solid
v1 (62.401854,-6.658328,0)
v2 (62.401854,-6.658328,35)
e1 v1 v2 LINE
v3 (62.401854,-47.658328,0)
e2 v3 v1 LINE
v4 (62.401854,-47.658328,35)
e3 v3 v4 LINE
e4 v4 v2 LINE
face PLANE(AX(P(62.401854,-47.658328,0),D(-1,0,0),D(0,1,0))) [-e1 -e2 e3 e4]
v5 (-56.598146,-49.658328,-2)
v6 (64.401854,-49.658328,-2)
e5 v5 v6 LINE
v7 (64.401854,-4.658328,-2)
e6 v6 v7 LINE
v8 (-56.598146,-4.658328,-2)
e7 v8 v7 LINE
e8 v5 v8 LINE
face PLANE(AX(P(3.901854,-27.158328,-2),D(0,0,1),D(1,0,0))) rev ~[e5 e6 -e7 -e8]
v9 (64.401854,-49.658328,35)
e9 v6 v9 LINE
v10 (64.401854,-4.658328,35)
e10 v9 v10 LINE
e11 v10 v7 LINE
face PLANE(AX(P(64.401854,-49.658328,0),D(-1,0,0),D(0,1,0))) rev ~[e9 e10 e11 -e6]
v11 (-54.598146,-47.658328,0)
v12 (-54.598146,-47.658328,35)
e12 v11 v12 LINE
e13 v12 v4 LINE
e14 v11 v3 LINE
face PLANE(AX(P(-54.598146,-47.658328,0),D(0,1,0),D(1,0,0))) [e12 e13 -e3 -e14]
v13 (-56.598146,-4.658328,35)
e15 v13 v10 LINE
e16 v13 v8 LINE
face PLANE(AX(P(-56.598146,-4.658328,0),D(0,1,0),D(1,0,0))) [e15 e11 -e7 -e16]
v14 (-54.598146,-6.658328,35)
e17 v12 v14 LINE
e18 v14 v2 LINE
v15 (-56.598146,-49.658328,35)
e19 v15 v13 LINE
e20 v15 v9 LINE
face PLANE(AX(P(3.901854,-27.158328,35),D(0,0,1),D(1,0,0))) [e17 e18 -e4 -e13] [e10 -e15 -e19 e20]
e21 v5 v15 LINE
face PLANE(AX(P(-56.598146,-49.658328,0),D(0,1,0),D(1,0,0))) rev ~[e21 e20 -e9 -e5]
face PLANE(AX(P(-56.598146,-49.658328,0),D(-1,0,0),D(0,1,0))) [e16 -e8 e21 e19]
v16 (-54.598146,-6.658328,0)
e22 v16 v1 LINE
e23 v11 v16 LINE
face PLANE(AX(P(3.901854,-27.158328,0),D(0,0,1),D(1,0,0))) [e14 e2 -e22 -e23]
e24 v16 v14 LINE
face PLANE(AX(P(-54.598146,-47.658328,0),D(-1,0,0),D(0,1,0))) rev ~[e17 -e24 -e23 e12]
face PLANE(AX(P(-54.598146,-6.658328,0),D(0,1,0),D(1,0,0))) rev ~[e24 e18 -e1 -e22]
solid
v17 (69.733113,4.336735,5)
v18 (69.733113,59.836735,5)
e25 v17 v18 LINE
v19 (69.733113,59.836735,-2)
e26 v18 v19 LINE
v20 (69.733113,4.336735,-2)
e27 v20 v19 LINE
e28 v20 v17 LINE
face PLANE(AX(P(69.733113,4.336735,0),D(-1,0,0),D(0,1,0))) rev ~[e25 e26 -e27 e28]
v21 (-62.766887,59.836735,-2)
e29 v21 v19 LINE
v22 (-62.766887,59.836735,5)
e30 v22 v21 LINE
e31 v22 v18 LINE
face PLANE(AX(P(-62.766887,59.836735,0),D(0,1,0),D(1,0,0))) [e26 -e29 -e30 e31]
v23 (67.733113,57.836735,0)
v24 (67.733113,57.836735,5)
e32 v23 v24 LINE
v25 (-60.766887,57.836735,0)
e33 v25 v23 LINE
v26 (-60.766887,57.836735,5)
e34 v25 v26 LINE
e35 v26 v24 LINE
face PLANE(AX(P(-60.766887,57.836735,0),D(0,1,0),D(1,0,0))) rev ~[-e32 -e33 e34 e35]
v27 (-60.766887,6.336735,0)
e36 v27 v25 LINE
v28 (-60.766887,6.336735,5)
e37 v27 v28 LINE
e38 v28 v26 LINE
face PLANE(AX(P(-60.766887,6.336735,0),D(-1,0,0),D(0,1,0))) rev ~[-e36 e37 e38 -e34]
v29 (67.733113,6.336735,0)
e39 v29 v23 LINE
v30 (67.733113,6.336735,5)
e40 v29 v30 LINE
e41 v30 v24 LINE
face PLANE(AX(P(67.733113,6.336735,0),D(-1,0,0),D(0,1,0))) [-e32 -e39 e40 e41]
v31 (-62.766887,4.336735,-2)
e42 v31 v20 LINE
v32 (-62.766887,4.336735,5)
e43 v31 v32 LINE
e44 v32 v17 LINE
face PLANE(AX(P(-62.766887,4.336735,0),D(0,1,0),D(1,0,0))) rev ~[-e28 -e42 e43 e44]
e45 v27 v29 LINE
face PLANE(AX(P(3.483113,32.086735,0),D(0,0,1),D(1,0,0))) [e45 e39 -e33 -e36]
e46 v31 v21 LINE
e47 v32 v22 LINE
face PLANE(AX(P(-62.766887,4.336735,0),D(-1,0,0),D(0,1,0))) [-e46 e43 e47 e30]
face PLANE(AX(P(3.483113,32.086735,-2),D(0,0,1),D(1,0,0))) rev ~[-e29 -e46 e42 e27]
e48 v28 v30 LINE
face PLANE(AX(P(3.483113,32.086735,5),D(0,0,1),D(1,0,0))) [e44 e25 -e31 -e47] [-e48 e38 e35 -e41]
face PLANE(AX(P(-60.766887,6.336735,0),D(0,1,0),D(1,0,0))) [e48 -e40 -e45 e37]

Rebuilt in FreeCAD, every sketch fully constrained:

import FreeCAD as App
import Part
import Sketcher
Q = App.Units.Quantity


def add_polygon(sketch, points):
    """Adds a closed chain of lines whose ends are joined by coincident constraints."""
    first, n = sketch.GeometryCount, len(points)
    for a, b in zip(points, points[1:] + points[:1]):
        sketch.addGeometry(Part.LineSegment(App.Vector(*a, 0), App.Vector(*b, 0)), False)
    for i in range(n):
        sketch.addConstraint(Sketcher.Constraint("Coincident", first + i, 2, first + (i + 1) % n, 1))

doc = App.newDocument("Part")
params = doc.addObject("Spreadsheet::Sheet", "Params")
for row, (alias, value) in enumerate([
    ("sketch1_width", "121 mm"),
    ("sketch1_height", "45 mm"),
    ("sketch1_width2", "132.5 mm"),
    ("sketch1_height2", "55.5 mm"),
    ("pad1_length", "2 mm"),
    ("sketch2_width", "132.5 mm"),
    ("sketch2_width2", "128.5 mm"),
    ("sketch2_height", "55.5 mm"),
    ("sketch2_height2", "51.5 mm"),
    ("pad2_length", "5 mm"),
    ("sketch3_width", "121 mm"),
    ("sketch3_width2", "117 mm"),
    ("sketch3_height", "45 mm"),
    ("sketch3_height2", "41 mm"),
    ("pad3_length", "35 mm"),
], start=1):
    params.set(f"A{row}", alias)
    params.set(f"B{row}", "=" + value)
    params.setAlias(f"B{row}", alias)

body = doc.addObject("PartDesign::Body", "Body")
body.AllowCompound = True

# Sketch on XY plane
sketch1 = body.newObject("Sketcher::SketchObject", "Sketch")
sketch1.AttachmentSupport = (doc.getObject("XY_Plane"), [""])
sketch1.MapMode = "FlatFace"
add_polygon(sketch1, [(-63, 60), (-63, 4), (70, 4), (70, 60)])  # lines 0-3
add_polygon(sketch1, [(-57, -5), (-57, -50), (64, -50), (64, -5)])  # lines 4-7
sketch1.addConstraint(Sketcher.Constraint("Vertical", 0))
sketch1.addConstraint(Sketcher.Constraint("Horizontal", 1))
sketch1.addConstraint(Sketcher.Constraint("Vertical", 2))
sketch1.addConstraint(Sketcher.Constraint("Horizontal", 3))
sketch1.addConstraint(Sketcher.Constraint("Vertical", 4))
sketch1.addConstraint(Sketcher.Constraint("Horizontal", 5))
sketch1.addConstraint(Sketcher.Constraint("Vertical", 6))
sketch1.addConstraint(Sketcher.Constraint("Horizontal", 7))
sketch1.addConstraint(Sketcher.Constraint("DistanceX", 5, 1, 5, 2, Q("121 mm")))
sketch1.addConstraint(Sketcher.Constraint("DistanceY", 4, 2, 4, 1, Q("45 mm")))
sketch1.addConstraint(Sketcher.Constraint("DistanceX", 1, 1, 1, 2, Q("132.5 mm")))
sketch1.addConstraint(Sketcher.Constraint("DistanceY", 0, 2, 0, 1, Q("55.5 mm")))
sketch1.addConstraint(Sketcher.Constraint("DistanceX", 0, 2, 4, 2, Q("6.168741 mm")))
sketch1.addConstraint(Sketcher.Constraint("DistanceX", 0, 2, -1, 1, Q("62.766887 mm")))
sketch1.addConstraint(Sketcher.Constraint("DistanceY", -1, 1, 0, 2, Q("4.336735 mm")))
sketch1.addConstraint(Sketcher.Constraint("DistanceY", 4, 2, -1, 1, Q("49.658328 mm")))
sketch1.setExpression("Constraints[16]", "Params.sketch1_width")
sketch1.setExpression("Constraints[17]", "Params.sketch1_height")
sketch1.setExpression("Constraints[18]", "Params.sketch1_width2")
sketch1.setExpression("Constraints[19]", "Params.sketch1_height2")
pad1 = body.newObject("PartDesign::Pad", "Pad")
pad1.Profile = sketch1
pad1.setExpression("Length", "Params.pad1_length")
pad1.Reversed = True

# Sketch on XY plane
sketch2 = body.newObject("Sketcher::SketchObject", "Sketch001")
sketch2.AttachmentSupport = (doc.getObject("XY_Plane"), [""])
sketch2.MapMode = "FlatFace"
add_polygon(sketch2, [(-63, 60), (-63, 4), (70, 4), (70, 60)])  # lines 0-3
add_polygon(sketch2, [(68, 6), (-61, 6), (-61, 58), (68, 58)])  # lines 4-7
sketch2.addConstraint(Sketcher.Constraint("Vertical", 0))
sketch2.addConstraint(Sketcher.Constraint("Horizontal", 1))
sketch2.addConstraint(Sketcher.Constraint("Vertical", 2))
sketch2.addConstraint(Sketcher.Constraint("Horizontal", 3))
sketch2.addConstraint(Sketcher.Constraint("Horizontal", 4))
sketch2.addConstraint(Sketcher.Constraint("Vertical", 5))
sketch2.addConstraint(Sketcher.Constraint("Horizontal", 6))
sketch2.addConstraint(Sketcher.Constraint("Vertical", 7))
sketch2.addConstraint(Sketcher.Constraint("DistanceX", 1, 1, 1, 2, Q("132.5 mm")))
sketch2.addConstraint(Sketcher.Constraint("DistanceX", 4, 2, 4, 1, Q("128.5 mm")))
sketch2.addConstraint(Sketcher.Constraint("DistanceY", 0, 2, 0, 1, Q("55.5 mm")))
sketch2.addConstraint(Sketcher.Constraint("DistanceY", 5, 1, 5, 2, Q("51.5 mm")))
sketch2.addConstraint(Sketcher.Constraint("DistanceX", 0, 2, 4, 2, Q("2 mm")))
sketch2.addConstraint(Sketcher.Constraint("DistanceY", 0, 2, 4, 2, Q("2 mm")))
sketch2.addConstraint(Sketcher.Constraint("DistanceX", 0, 2, -1, 1, Q("62.766887 mm")))
sketch2.addConstraint(Sketcher.Constraint("DistanceY", -1, 1, 0, 2, Q("4.336735 mm")))
sketch2.setExpression("Constraints[16]", "Params.sketch2_width")
sketch2.setExpression("Constraints[17]", "Params.sketch2_width2")
sketch2.setExpression("Constraints[18]", "Params.sketch2_height")
sketch2.setExpression("Constraints[19]", "Params.sketch2_height2")
pad2 = body.newObject("PartDesign::Pad", "Pad001")
pad2.Profile = sketch2
pad2.setExpression("Length", "Params.pad2_length")

# Sketch on XY plane
sketch3 = body.newObject("Sketcher::SketchObject", "Sketch002")
sketch3.AttachmentSupport = (doc.getObject("XY_Plane"), [""])
sketch3.MapMode = "FlatFace"
add_polygon(sketch3, [(-57, -5), (-57, -50), (64, -50), (64, -5)])  # lines 0-3
add_polygon(sketch3, [(62, -48), (-55, -48), (-55, -7), (62, -7)])  # lines 4-7
sketch3.addConstraint(Sketcher.Constraint("Vertical", 0))
sketch3.addConstraint(Sketcher.Constraint("Horizontal", 1))
sketch3.addConstraint(Sketcher.Constraint("Vertical", 2))
sketch3.addConstraint(Sketcher.Constraint("Horizontal", 3))
sketch3.addConstraint(Sketcher.Constraint("Horizontal", 4))
sketch3.addConstraint(Sketcher.Constraint("Vertical", 5))
sketch3.addConstraint(Sketcher.Constraint("Horizontal", 6))
sketch3.addConstraint(Sketcher.Constraint("Vertical", 7))
sketch3.addConstraint(Sketcher.Constraint("DistanceX", 1, 1, 1, 2, Q("121 mm")))
sketch3.addConstraint(Sketcher.Constraint("DistanceX", 4, 2, 4, 1, Q("117 mm")))
sketch3.addConstraint(Sketcher.Constraint("DistanceY", 0, 2, 0, 1, Q("45 mm")))
sketch3.addConstraint(Sketcher.Constraint("DistanceY", 5, 1, 5, 2, Q("41 mm")))
sketch3.addConstraint(Sketcher.Constraint("DistanceX", 0, 2, 4, 2, Q("2 mm")))
sketch3.addConstraint(Sketcher.Constraint("DistanceY", 0, 2, 4, 2, Q("2 mm")))
sketch3.addConstraint(Sketcher.Constraint("DistanceX", 0, 2, -1, 1, Q("56.598146 mm")))
sketch3.addConstraint(Sketcher.Constraint("DistanceY", 0, 2, -1, 1, Q("49.658328 mm")))
sketch3.setExpression("Constraints[16]", "Params.sketch3_width")
sketch3.setExpression("Constraints[17]", "Params.sketch3_width2")
sketch3.setExpression("Constraints[18]", "Params.sketch3_height")
sketch3.setExpression("Constraints[19]", "Params.sketch3_height2")
pad3 = body.newObject("PartDesign::Pad", "Pad002")
pad3.Profile = sketch3
pad3.setExpression("Length", "Params.pad3_length")

doc.recompute()
